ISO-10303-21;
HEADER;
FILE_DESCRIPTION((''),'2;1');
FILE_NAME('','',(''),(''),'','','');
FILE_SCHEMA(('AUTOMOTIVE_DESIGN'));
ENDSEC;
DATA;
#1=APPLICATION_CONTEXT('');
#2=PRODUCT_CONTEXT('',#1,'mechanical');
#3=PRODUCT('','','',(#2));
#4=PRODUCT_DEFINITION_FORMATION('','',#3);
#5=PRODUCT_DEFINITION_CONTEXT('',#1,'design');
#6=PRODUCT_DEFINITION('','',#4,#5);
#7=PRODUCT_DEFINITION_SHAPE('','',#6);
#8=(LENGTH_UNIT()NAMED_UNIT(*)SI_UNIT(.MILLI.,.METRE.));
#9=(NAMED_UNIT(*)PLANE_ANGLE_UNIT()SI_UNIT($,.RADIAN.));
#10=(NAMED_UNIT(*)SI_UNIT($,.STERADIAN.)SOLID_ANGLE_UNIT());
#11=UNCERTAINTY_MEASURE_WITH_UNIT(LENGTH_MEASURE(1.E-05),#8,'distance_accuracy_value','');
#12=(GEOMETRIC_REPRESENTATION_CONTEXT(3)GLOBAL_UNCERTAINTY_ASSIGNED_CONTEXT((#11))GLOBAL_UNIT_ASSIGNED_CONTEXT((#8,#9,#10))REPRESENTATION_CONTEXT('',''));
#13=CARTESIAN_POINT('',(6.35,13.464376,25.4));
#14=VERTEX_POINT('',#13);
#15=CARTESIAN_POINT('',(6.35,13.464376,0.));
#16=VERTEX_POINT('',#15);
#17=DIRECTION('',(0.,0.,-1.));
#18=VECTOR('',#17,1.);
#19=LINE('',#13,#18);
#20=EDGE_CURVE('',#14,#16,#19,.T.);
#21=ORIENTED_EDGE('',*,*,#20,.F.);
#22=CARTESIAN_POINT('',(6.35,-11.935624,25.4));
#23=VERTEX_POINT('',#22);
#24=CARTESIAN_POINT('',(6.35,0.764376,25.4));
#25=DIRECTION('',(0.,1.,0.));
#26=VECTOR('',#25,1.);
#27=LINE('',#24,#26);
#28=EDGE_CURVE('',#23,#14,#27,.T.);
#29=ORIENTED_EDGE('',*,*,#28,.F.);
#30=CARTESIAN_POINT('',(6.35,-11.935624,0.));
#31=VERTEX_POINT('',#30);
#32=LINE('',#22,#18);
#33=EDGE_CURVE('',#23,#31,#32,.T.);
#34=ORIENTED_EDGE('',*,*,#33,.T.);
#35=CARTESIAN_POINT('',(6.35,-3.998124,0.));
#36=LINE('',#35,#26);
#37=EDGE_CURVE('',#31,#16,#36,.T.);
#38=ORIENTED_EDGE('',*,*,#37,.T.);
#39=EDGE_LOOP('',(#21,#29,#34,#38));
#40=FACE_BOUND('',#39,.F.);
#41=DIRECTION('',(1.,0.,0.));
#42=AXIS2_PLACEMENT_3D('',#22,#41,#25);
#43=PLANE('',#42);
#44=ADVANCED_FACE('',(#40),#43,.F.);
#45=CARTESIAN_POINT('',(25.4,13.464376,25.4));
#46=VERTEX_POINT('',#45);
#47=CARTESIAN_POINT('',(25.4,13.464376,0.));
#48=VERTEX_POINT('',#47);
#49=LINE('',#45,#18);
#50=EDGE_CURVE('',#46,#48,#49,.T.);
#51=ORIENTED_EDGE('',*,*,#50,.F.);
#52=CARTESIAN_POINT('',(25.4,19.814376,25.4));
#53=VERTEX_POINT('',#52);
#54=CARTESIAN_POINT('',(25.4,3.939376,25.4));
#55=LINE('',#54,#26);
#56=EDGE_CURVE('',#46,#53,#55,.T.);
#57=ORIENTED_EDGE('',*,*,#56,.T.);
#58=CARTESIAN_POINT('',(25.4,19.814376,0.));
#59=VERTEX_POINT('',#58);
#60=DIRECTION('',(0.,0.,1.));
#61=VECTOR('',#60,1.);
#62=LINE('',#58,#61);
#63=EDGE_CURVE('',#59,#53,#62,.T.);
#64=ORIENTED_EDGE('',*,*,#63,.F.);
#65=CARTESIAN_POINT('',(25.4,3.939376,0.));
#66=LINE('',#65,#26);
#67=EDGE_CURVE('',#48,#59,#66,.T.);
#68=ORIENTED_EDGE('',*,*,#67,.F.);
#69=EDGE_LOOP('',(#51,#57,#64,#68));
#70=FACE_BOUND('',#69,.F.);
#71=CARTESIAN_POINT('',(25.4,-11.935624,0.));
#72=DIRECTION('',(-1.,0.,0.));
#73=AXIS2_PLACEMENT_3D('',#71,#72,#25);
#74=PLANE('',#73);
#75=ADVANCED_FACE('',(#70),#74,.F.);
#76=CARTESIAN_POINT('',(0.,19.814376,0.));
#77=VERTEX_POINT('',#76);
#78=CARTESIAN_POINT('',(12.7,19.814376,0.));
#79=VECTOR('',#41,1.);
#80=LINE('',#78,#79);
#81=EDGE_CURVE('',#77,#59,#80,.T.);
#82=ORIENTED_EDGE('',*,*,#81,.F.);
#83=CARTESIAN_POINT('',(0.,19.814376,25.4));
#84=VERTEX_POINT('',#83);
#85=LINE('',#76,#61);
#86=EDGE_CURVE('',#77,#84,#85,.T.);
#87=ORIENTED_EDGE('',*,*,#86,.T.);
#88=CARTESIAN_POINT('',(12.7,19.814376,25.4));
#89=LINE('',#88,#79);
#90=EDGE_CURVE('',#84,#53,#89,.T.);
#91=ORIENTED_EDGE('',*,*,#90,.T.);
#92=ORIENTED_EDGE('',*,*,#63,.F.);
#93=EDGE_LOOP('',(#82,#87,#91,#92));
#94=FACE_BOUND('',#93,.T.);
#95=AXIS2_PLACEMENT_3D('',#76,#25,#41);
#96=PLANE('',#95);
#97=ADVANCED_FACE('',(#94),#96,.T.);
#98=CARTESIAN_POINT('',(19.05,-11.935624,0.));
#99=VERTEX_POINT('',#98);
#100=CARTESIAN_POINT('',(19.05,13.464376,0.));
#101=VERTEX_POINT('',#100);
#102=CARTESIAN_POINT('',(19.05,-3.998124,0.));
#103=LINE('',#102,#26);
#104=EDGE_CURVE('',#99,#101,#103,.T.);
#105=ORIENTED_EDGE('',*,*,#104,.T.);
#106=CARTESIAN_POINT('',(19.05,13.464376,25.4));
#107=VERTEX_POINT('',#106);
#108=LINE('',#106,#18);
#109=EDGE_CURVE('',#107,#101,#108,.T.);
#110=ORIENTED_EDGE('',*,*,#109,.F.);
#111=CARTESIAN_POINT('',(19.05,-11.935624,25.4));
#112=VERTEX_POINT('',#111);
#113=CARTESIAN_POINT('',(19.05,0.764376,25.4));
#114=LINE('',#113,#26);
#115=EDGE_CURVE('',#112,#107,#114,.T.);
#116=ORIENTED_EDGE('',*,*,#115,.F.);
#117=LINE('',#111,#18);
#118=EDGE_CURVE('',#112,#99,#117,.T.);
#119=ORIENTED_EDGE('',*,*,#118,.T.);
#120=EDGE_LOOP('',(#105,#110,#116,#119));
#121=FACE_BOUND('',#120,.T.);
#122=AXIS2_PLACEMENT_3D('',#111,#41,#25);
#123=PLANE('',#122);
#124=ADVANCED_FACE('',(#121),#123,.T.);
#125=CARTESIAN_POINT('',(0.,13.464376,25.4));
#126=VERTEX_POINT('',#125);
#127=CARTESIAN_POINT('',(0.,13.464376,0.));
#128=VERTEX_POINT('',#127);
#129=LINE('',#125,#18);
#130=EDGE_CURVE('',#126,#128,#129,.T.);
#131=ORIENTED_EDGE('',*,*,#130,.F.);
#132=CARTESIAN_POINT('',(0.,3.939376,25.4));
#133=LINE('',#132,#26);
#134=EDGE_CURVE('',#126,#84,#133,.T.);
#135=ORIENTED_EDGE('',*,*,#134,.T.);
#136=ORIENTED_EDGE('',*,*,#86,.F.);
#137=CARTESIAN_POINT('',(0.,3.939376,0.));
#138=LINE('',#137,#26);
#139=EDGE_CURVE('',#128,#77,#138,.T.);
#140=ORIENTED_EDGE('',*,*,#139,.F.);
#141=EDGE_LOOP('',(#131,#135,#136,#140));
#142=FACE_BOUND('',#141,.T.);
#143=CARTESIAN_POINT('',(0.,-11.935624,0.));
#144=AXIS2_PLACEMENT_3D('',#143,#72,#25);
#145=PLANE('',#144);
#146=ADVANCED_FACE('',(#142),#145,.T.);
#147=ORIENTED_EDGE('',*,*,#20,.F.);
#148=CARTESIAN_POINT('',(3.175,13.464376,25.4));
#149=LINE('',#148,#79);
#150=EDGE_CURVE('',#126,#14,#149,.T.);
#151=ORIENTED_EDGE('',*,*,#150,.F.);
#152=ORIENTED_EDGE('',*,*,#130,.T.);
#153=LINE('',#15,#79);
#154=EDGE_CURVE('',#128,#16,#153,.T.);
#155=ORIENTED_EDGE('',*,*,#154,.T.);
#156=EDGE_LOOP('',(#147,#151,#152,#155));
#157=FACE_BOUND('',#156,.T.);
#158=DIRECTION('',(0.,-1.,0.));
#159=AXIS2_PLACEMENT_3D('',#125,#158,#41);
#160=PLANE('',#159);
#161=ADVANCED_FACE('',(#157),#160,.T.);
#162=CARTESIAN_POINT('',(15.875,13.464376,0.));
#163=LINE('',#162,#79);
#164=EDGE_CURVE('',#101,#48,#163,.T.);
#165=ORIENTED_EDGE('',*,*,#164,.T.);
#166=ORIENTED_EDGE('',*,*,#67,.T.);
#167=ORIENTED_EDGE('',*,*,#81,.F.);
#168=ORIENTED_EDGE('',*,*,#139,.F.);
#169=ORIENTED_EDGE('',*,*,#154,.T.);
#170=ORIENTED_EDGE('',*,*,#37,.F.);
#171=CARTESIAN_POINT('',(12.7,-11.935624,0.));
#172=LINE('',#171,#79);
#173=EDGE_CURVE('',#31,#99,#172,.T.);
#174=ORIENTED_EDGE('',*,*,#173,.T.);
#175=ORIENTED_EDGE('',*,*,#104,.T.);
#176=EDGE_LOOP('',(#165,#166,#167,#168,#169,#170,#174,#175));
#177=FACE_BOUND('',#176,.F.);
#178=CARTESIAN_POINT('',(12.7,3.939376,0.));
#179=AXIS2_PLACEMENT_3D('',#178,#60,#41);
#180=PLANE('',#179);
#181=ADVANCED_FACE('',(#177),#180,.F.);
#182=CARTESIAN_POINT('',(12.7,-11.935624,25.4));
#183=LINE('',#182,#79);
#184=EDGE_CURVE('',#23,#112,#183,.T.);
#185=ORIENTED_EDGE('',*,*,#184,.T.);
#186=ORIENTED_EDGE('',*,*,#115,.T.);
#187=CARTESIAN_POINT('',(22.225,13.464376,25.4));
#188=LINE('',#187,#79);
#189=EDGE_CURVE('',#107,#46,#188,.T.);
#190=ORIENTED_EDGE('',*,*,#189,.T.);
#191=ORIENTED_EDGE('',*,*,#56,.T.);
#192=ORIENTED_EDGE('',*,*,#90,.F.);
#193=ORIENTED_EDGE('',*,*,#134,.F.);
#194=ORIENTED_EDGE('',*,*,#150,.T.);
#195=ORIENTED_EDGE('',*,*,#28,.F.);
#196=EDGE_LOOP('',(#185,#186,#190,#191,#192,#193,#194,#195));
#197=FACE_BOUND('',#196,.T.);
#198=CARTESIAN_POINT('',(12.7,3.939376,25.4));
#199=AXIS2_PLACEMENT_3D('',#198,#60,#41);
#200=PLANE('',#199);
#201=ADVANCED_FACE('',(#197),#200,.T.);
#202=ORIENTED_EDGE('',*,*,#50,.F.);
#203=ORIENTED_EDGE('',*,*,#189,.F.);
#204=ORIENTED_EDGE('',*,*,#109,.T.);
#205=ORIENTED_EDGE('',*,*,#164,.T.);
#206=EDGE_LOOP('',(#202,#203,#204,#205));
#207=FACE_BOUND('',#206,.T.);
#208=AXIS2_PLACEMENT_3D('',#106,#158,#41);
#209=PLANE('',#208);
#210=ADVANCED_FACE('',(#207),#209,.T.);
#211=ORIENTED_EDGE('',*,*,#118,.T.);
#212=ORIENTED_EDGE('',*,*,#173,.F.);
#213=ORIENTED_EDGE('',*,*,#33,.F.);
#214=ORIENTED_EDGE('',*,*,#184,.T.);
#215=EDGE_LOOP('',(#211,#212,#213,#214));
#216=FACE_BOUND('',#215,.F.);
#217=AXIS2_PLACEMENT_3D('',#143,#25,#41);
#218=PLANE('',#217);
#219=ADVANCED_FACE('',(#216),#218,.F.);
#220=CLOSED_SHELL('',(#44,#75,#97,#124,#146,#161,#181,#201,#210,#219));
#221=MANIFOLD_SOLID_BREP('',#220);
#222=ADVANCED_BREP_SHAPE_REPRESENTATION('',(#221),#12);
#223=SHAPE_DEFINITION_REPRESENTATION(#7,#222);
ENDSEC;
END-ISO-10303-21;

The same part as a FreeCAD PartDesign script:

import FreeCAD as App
import Part
import Sketcher
Q = App.Units.Quantity


def add_polygon(sketch, points):
    """Adds a closed chain of lines whose ends are joined by coincident constraints."""
    first, n = sketch.GeometryCount, len(points)
    for a, b in zip(points, points[1:] + points[:1]):
        sketch.addGeometry(Part.LineSegment(App.Vector(*a, 0), App.Vector(*b, 0)), False)
    for i in range(n):
        sketch.addConstraint(Sketcher.Constraint("Coincident", first + i, 2, first + (i + 1) % n, 1))

doc = App.newDocument("Part")
body = doc.addObject("PartDesign::Body", "Body")

# Sketch on XY plane
sketch1 = body.newObject("Sketcher::SketchObject", "Sketch")
sketch1.AttachmentSupport = (doc.getObject("XY_Plane"), [""])
sketch1.MapMode = "FlatFace"
add_polygon(sketch1, [(0, 19.814376), (0, -11.935624), (25.4, -11.935624), (25.4, 19.814376)])  # lines 0-3
sketch1.addConstraint([
    Sketcher.Constraint("Vertical", 0),
    Sketcher.Constraint("Horizontal", 1),
    Sketcher.Constraint("Vertical", 2),
    Sketcher.Constraint("Horizontal", 3),
    Sketcher.Constraint("PointOnObject", 0, 2, -2),
    Sketcher.Constraint("DistanceX", 1, 1, 1, 2, Q("1 in")),
    Sketcher.Constraint("DistanceY", 0, 2, 0, 1, Q("1.25 in")),
    Sketcher.Constraint("DistanceY", 0, 2, -1, 1, 11.935624),
])
pad1 = body.newObject("PartDesign::Pad", "Pad")
pad1.Profile = sketch1
pad1.Length = Q("1 in")

# Sketch on XY plane
sketch2 = body.newObject("Sketcher::SketchObject", "Sketch001")
sketch2.AttachmentSupport = (doc.getObject("XY_Plane"), [""])
sketch2.MapMode = "FlatFace"
sketch2.AttachmentOffset = App.Placement(App.Vector(0, 0, 1 * 25.4), App.Rotation())
add_polygon(sketch2, [(0, 13.464376), (0, -11.935624), (6.35, -11.935624), (6.35, 13.464376)])  # lines 0-3
sketch2.addConstraint([
    Sketcher.Constraint("Vertical", 0),
    Sketcher.Constraint("Horizontal", 1),
    Sketcher.Constraint("Vertical", 2),
    Sketcher.Constraint("Horizontal", 3),
    Sketcher.Constraint("PointOnObject", 0, 2, -2),
    Sketcher.Constraint("DistanceY", 0, 2, 0, 1, Q("1 in")),
    Sketcher.Constraint("DistanceX", 1, 1, 1, 2, Q("0.25 in")),
    Sketcher.Constraint("DistanceY", 0, 2, -1, 1, 11.935624),
])
pocket1 = body.newObject("PartDesign::Pocket", "Pocket")
pocket1.Profile = sketch2
pocket1.Type = "ThroughAll"

# Sketch on XY plane
sketch3 = body.newObject("Sketcher::SketchObject", "Sketch002")
sketch3.AttachmentSupport = (doc.getObject("XY_Plane"), [""])
sketch3.MapMode = "FlatFace"
sketch3.AttachmentOffset = App.Placement(App.Vector(0, 0, 1 * 25.4), App.Rotation())
add_polygon(sketch3, [(19.05, 13.464376), (19.05, -11.935624), (25.4, -11.935624), (25.4, 13.464376)])  # lines 0-3
sketch3.addConstraint([
    Sketcher.Constraint("Vertical", 0),
    Sketcher.Constraint("Horizontal", 1),
    Sketcher.Constraint("Vertical", 2),
    Sketcher.Constraint("Horizontal", 3),
    Sketcher.Constraint("DistanceY", 0, 2, 0, 1, Q("1 in")),
    Sketcher.Constraint("DistanceX", -1, 1, 1, 2, Q("1 in")),
    Sketcher.Constraint("DistanceX", 1, 1, 1, 2, Q("0.25 in")),
    Sketcher.Constraint("DistanceY", 0, 2, -1, 1, 11.935624),
])
pocket2 = body.newObject("PartDesign::Pocket", "Pocket001")
pocket2.Profile = sketch3
pocket2.Type = "ThroughAll"

doc.recompute()
